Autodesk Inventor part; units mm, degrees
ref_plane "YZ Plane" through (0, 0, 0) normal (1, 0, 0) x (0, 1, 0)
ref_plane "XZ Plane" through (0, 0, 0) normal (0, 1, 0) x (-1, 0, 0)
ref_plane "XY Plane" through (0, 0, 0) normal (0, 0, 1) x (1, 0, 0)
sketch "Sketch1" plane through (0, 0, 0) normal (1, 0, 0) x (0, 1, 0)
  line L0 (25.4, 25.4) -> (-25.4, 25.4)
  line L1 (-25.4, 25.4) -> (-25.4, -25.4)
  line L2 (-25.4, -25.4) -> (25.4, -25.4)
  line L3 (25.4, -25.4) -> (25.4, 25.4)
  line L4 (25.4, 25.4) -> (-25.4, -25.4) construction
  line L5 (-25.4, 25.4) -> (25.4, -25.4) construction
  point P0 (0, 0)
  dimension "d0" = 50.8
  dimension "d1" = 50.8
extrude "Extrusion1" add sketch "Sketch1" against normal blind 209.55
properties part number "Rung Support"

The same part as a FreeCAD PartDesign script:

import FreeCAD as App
import Part
import Sketcher

V = App.Vector
Q = App.Units.Quantity


def add_polygon(sketch, points):
    """Adds a closed chain of lines whose ends are joined by coincident constraints."""
    first, n = sketch.GeometryCount, len(points)
    for a, b in zip(points, points[1:] + points[:1]):
        sketch.addGeometry(Part.LineSegment(App.Vector(*a, 0), App.Vector(*b, 0)), False)
    for i in range(n):
        sketch.addConstraint(Sketcher.Constraint("Coincident", first + i, 2, first + (i + 1) % n, 1))

doc = App.newDocument("Part")
params = doc.addObject("Spreadsheet::Sheet", "Params")
for row, (alias, value) in enumerate([
    ("sketch1_width", "2 in"),
    ("pad1_length", "8.25 in"),
], start=1):
    params.set(f"A{row}", alias)
    params.set(f"B{row}", "=" + value)
    params.setAlias(f"B{row}", alias)

body = doc.addObject("PartDesign::Body", "Body")

# Sketch on YZ plane
sketch1 = doc.addObject("Sketcher::SketchObject", "Sketch")
body.addObject(sketch1)
sketch1.AttachmentSupport = (doc.YZ_Plane, [""])
sketch1.MapMode = "FlatFace"
add_polygon(sketch1, [(25.4, -25.4), (25.4, 25.4), (-25.4, 25.4), (-25.4, -25.4)])  # lines 0-3
sketch1.addConstraint(Sketcher.Constraint("Vertical", 0))
sketch1.addConstraint(Sketcher.Constraint("Horizontal", 1))
sketch1.addConstraint(Sketcher.Constraint("Vertical", 2))
sketch1.addConstraint(Sketcher.Constraint("Horizontal", 3))
sketch1.addConstraint(Sketcher.Constraint("Symmetric", 0, 2, 2, 2, -1, 1))
sketch1.addConstraint(Sketcher.Constraint("Equal", 3, 0))
sketch1.addConstraint(Sketcher.Constraint("DistanceX", 1, 2, 1, 1, Q("2 in")))
sketch1.setExpression("Constraints[10]", "Params.sketch1_width")
pad1 = doc.addObject("PartDesign::Pad", "Pad")
body.addObject(pad1)
pad1.Profile = sketch1
pad1.setExpression("Length", "Params.pad1_length")
pad1.Reversed = True

doc.recompute()
